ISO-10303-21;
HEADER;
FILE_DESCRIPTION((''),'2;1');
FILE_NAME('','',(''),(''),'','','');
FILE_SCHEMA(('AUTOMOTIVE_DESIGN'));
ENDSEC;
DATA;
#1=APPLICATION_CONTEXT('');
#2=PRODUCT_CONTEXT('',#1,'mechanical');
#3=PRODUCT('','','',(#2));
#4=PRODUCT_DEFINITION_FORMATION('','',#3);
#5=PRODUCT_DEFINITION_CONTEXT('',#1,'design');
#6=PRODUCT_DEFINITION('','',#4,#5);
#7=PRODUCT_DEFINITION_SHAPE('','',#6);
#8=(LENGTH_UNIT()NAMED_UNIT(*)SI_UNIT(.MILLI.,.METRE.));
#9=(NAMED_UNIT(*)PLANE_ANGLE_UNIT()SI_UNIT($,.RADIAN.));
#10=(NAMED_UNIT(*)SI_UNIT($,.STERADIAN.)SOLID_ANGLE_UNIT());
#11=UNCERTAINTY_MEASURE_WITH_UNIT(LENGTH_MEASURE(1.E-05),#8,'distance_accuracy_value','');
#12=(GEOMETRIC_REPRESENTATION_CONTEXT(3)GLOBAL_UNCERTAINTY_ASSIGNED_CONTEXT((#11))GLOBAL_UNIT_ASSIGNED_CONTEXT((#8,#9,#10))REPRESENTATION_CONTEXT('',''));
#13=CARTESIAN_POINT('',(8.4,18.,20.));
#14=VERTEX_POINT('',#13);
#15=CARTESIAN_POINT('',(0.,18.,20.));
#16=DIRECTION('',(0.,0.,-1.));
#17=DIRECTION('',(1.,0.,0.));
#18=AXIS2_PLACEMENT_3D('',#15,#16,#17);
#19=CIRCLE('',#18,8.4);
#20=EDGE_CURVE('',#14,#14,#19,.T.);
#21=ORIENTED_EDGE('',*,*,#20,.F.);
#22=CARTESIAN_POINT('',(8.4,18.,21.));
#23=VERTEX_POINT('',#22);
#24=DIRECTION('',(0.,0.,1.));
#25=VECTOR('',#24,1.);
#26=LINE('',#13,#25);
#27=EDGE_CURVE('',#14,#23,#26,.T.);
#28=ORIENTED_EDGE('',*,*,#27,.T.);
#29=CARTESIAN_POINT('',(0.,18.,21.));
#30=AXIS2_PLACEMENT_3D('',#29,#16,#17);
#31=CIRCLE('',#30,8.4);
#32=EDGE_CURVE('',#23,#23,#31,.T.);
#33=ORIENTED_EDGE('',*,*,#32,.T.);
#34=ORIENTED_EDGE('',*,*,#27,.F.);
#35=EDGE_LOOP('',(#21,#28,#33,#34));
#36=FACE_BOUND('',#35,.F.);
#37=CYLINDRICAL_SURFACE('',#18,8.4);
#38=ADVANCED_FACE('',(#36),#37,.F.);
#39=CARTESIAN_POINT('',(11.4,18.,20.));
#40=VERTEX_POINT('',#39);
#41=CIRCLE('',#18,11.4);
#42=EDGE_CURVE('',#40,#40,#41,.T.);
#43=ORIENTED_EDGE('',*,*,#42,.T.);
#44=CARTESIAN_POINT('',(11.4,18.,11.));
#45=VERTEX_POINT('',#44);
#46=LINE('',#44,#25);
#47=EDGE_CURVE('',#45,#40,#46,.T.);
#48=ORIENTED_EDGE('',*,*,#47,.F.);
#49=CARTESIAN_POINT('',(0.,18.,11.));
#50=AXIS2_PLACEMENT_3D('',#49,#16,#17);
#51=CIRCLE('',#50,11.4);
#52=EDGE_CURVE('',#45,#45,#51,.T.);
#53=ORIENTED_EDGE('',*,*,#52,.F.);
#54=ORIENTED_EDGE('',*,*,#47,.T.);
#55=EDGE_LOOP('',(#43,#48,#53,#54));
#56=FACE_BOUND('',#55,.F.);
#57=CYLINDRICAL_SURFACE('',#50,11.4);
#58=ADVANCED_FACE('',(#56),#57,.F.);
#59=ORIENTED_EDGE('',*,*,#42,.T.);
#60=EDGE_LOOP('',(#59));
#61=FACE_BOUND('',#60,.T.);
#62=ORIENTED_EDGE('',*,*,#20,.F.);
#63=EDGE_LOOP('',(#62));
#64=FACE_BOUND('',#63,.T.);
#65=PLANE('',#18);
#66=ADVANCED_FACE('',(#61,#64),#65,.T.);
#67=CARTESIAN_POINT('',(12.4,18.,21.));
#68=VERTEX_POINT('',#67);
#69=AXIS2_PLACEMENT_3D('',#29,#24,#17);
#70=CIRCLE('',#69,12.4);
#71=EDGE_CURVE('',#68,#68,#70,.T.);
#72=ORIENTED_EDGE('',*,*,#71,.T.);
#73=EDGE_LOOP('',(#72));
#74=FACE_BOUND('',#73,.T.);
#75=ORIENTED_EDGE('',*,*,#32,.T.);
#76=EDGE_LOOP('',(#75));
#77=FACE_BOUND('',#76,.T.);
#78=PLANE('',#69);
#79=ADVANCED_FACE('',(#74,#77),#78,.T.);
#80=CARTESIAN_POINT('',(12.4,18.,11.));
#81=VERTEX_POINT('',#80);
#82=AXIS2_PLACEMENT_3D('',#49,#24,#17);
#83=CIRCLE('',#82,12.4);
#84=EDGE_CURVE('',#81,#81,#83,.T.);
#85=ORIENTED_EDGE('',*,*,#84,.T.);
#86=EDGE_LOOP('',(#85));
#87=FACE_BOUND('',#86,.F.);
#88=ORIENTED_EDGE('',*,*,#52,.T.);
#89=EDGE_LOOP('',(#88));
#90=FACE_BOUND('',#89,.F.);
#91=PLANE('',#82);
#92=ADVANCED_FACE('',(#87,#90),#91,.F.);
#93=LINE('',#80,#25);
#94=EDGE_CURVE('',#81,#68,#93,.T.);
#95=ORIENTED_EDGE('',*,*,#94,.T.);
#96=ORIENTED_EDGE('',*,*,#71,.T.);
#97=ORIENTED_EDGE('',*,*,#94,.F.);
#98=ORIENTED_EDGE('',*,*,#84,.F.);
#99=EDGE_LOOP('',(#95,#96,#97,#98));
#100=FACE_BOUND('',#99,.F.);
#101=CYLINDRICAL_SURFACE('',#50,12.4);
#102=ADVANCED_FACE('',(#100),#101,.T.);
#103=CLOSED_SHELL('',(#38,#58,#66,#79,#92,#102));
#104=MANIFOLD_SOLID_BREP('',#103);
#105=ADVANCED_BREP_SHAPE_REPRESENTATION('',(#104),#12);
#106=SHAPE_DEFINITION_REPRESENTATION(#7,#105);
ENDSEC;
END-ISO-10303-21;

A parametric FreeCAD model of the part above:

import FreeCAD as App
import Part
import Sketcher
from FreeCAD import Vector

doc = App.newDocument("Part")
body = doc.addObject("PartDesign::Body", "Body")

# Sketch on XY plane
sketch1 = doc.addObject("Sketcher::SketchObject", "Sketch")
body.addObject(sketch1)
sketch1.AttachmentSupport = (doc.XY_Plane, [""])
sketch1.MapMode = "FlatFace"
sketch1.addGeometry(Part.Circle(Vector(0, 18, 0), Vector(0, 0, 1), 12.4), False)
sketch1.addConstraint([
    Sketcher.Constraint("PointOnObject", 0, 3, -2),
    Sketcher.Constraint("Diameter", 0, 24.8),
    Sketcher.Constraint("DistanceY", -1, 1, 0, 3, 18.0),
])
pad1 = doc.addObject("PartDesign::Pad", "Pad")
body.addObject(pad1)
pad1.Profile = sketch1
pad1.Length = 10

# Sketch on XY plane
sketch2 = doc.addObject("Sketcher::SketchObject", "Sketch001")
body.addObject(sketch2)
sketch2.AttachmentSupport = (doc.XY_Plane, [""])
sketch2.MapMode = "FlatFace"
sketch2.addGeometry(Part.Circle(Vector(0, 18, 0), Vector(0, 0, 1), 11.4), False)
sketch2.addConstraint([
    Sketcher.Constraint("PointOnObject", 0, 3, -2),
    Sketcher.Constraint("Diameter", 0, 22.8),
    Sketcher.Constraint("DistanceY", -1, 1, 0, 3, 18.0),
])
pocket1 = doc.addObject("PartDesign::Pocket", "Pocket")
body.addObject(pocket1)
pocket1.Profile = sketch2
pocket1.Length = 9
pocket1.Reversed = True

# Sketch on XY plane
sketch3 = doc.addObject("Sketcher::SketchObject", "Sketch002")
body.addObject(sketch3)
sketch3.AttachmentSupport = (doc.XY_Plane, [""])
sketch3.MapMode = "FlatFace"
sketch3.AttachmentOffset = App.Placement(Vector(0, 0, 9), App.Rotation())
sketch3.addGeometry(Part.Circle(Vector(0, 18, 0), Vector(0, 0, 1), 8.4), False)
sketch3.addConstraint([
    Sketcher.Constraint("PointOnObject", 0, 3, -2),
    Sketcher.Constraint("Diameter", 0, 16.8),
    Sketcher.Constraint("DistanceY", -1, 1, 0, 3, 18.0),
])
pocket2 = doc.addObject("PartDesign::Pocket", "Pocket001")
body.addObject(pocket2)
pocket2.Profile = sketch3
pocket2.Length = 5
pocket2.Reversed = True
body2 = doc.addObject("PartDesign::Body", "Body001")
doc.recompute()

body.Placement = App.Placement(Vector(0, 0, 11), App.Rotation(Vector(0, 0, 1), 0))
boolean = doc.addObject("PartDesign::Boolean", "Boolean")
body2.addObject(boolean)
boolean.Type = "Fuse"
boolean.addObjects([body])

doc.recompute()
